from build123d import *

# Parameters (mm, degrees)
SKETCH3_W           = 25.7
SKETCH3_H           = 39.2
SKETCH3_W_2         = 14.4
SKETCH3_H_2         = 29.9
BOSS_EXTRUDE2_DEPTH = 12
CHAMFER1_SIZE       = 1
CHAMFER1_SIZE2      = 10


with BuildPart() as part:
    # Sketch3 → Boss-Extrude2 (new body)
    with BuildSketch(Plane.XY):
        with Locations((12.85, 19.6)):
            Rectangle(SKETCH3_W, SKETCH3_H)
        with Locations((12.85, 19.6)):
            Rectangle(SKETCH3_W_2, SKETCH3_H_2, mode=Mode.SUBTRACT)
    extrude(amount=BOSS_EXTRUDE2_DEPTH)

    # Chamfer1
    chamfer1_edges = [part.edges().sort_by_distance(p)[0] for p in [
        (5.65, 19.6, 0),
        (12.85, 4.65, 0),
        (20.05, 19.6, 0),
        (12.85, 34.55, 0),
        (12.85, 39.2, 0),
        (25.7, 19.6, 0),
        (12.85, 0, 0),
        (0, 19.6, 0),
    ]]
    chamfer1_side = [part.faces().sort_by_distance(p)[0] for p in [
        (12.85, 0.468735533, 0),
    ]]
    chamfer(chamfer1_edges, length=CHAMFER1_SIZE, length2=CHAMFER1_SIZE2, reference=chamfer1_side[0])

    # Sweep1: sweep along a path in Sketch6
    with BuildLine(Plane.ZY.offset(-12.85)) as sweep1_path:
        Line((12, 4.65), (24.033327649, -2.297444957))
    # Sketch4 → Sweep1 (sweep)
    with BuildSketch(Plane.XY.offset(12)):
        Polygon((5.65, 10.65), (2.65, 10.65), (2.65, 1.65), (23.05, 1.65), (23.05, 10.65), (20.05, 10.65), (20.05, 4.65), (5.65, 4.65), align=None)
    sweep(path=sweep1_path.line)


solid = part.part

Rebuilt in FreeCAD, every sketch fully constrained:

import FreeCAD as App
import Part
import Sketcher

V = App.Vector


def edges_at(feature, points):
    """Names of the edges that pass closest to the given points."""
    edges = feature.Shape.Edges
    near = lambda p: min(range(len(edges)), key=lambda i: edges[i].distToShape(Part.Vertex(*p))[0])
    return sorted({f"Edge{near(p) + 1}" for p in points})

doc = App.newDocument("Part")
body = doc.addObject("PartDesign::Body", "Body")

sketch1 = body.newObject("Sketcher::SketchObject", "Sketch")
sketch1.AttachmentSupport = (doc.getObject("XY_Plane"), [""])
sketch1.MapMode = "FlatFace"
sketch1.addGeometry([
    Part.LineSegment(V(0, 39.2, 0), V(0, 0, 0)),
    Part.LineSegment(V(0, 0, 0), V(25.7, 0, 0)),
    Part.LineSegment(V(25.7, 0, 0), V(25.7, 39.2, 0)),
    Part.LineSegment(V(25.7, 39.2, 0), V(0, 39.2, 0)),
    Part.LineSegment(V(20.05, 4.65, 0), V(5.65, 4.65, 0)),
    Part.LineSegment(V(5.65, 4.65, 0), V(5.65, 34.55, 0)),
    Part.LineSegment(V(5.65, 34.55, 0), V(20.05, 34.55, 0)),
    Part.LineSegment(V(20.05, 34.55, 0), V(20.05, 4.65, 0)),
], False)
sketch1.addConstraint([
    Sketcher.Constraint("Coincident", 0, 2, 1, 1),
    Sketcher.Constraint("Coincident", 1, 2, 2, 1),
    Sketcher.Constraint("Coincident", 2, 2, 3, 1),
    Sketcher.Constraint("Coincident", 3, 2, 0, 1),
    Sketcher.Constraint("Coincident", 4, 2, 5, 1),
    Sketcher.Constraint("Coincident", 5, 2, 6, 1),
    Sketcher.Constraint("Coincident", 6, 2, 7, 1),
    Sketcher.Constraint("Coincident", 7, 2, 4, 1),
    Sketcher.Constraint("Vertical", 0),
    Sketcher.Constraint("Horizontal", 1),
    Sketcher.Constraint("Vertical", 2),
    Sketcher.Constraint("Horizontal", 3),
    Sketcher.Constraint("Horizontal", 4),
    Sketcher.Constraint("Vertical", 5),
    Sketcher.Constraint("Horizontal", 6),
    Sketcher.Constraint("Vertical", 7),
    Sketcher.Constraint("Coincident", 0, 2, -1, 1),
    Sketcher.Constraint("DistanceX", 1, 1, 1, 2, 25.7),
    Sketcher.Constraint("DistanceX", 4, 2, 4, 1, 14.4),
    Sketcher.Constraint("DistanceY", 0, 2, 0, 1, 39.2),
    Sketcher.Constraint("DistanceY", 5, 1, 5, 2, 29.9),
    Sketcher.Constraint("DistanceX", -1, 1, 4, 2, 5.65),
    Sketcher.Constraint("DistanceY", -1, 1, 4, 2, 4.65),
])
pad1 = body.newObject("PartDesign::Pad", "Pad")
pad1.Profile = sketch1
pad1.Length = 12
doc.recompute()

chamfer = body.newObject("PartDesign::Chamfer", "Chamfer")
chamfer.Base = (pad1, edges_at(pad1, [
    (5.65, 19.6, 0),
    (12.85, 4.65, 0),
    (20.05, 19.6, 0),
    (12.85, 34.55, 0),
    (12.85, 39.2, 0),
    (25.7, 19.6, 0),
    (12.85, 0, 0),
    (0, 19.6, 0),
]))
chamfer.ChamferType = "Two distances"
chamfer.Size = 1
chamfer.Size2 = 10
chamfer.FlipDirection = True

sketch2 = body.newObject("Sketcher::SketchObject", "Sketch001")
sketch2.AttachmentSupport = (doc.getObject("XY_Plane"), [""])
sketch2.MapMode = "FlatFace"
sketch2.AttachmentOffset = App.Placement(V(0, 0, 12), App.Rotation())
sketch2.addGeometry([
    Part.LineSegment(V(5.65, 10.65, 0), V(2.65, 10.65, 0)),
    Part.LineSegment(V(2.65, 10.65, 0), V(2.65, 1.65, 0)),
    Part.LineSegment(V(2.65, 1.65, 0), V(23.05, 1.65, 0)),
    Part.LineSegment(V(23.05, 1.65, 0), V(23.05, 10.65, 0)),
    Part.LineSegment(V(23.05, 10.65, 0), V(20.05, 10.65, 0)),
    Part.LineSegment(V(20.05, 10.65, 0), V(20.05, 4.65, 0)),
    Part.LineSegment(V(20.05, 4.65, 0), V(5.65, 4.65, 0)),
    Part.LineSegment(V(5.65, 4.65, 0), V(5.65, 10.65, 0)),
], False)
sketch2.addConstraint([
    Sketcher.Constraint("Coincident", 0, 2, 1, 1),
    Sketcher.Constraint("Coincident", 1, 2, 2, 1),
    Sketcher.Constraint("Coincident", 2, 2, 3, 1),
    Sketcher.Constraint("Coincident", 3, 2, 4, 1),
    Sketcher.Constraint("Coincident", 4, 2, 5, 1),
    Sketcher.Constraint("Coincident", 5, 2, 6, 1),
    Sketcher.Constraint("Coincident", 6, 2, 7, 1),
    Sketcher.Constraint("Coincident", 7, 2, 0, 1),
    Sketcher.Constraint("Horizontal", 0),
    Sketcher.Constraint("Vertical", 1),
    Sketcher.Constraint("Horizontal", 2),
    Sketcher.Constraint("Vertical", 3),
    Sketcher.Constraint("Horizontal", 4),
    Sketcher.Constraint("Vertical", 5),
    Sketcher.Constraint("Horizontal", 6),
    Sketcher.Constraint("Vertical", 7),
    Sketcher.Constraint("Horizontal", 0, 2, 3, 2),
    Sketcher.Constraint("Equal", 0, 4),
    Sketcher.Constraint("DistanceX", 0, 2, 0, 1, 3.0),
    Sketcher.Constraint("DistanceY", 1, 2, 1, 1, 9.0),
    Sketcher.Constraint("DistanceY", 5, 2, 5, 1, 6.0),
    Sketcher.Constraint("DistanceX", 2, 1, 2, 2, 20.4),
    Sketcher.Constraint("DistanceX", -1, 1, 0, 2, 2.65),
    Sketcher.Constraint("DistanceY", -1, 1, 0, 2, 10.65),
])

sketch3 = body.newObject("Sketcher::SketchObject", "Sketch002")
sketch3.Placement = App.Placement(V(0, 8.683652, 5.013509), App.Rotation(V(0, 0.5, -0.866025404), V(1, 0, 0), V(0, -0.866025404, -0.5), "ZXY"))
sketch3.addGeometry(Part.LineSegment(V(-8.067305, 12.85, 0), V(-21.962195, 12.85, 0)), False)
sketch3.addConstraint([
    Sketcher.Constraint("Horizontal", 0),
    Sketcher.Constraint("DistanceY", -1, 1, 0, 1, 12.85),
    Sketcher.Constraint("DistanceX", 0, 2, 0, 1, 13.89489),
    Sketcher.Constraint("DistanceX", 0, 1, -1, 1, 8.067305),
])
doc.recompute()

additivepipe = body.newObject("PartDesign::AdditivePipe", "AdditivePipe")
additivepipe.Profile = sketch2
additivepipe.Spine = (sketch3, ["Edge1"])

doc.recompute()
